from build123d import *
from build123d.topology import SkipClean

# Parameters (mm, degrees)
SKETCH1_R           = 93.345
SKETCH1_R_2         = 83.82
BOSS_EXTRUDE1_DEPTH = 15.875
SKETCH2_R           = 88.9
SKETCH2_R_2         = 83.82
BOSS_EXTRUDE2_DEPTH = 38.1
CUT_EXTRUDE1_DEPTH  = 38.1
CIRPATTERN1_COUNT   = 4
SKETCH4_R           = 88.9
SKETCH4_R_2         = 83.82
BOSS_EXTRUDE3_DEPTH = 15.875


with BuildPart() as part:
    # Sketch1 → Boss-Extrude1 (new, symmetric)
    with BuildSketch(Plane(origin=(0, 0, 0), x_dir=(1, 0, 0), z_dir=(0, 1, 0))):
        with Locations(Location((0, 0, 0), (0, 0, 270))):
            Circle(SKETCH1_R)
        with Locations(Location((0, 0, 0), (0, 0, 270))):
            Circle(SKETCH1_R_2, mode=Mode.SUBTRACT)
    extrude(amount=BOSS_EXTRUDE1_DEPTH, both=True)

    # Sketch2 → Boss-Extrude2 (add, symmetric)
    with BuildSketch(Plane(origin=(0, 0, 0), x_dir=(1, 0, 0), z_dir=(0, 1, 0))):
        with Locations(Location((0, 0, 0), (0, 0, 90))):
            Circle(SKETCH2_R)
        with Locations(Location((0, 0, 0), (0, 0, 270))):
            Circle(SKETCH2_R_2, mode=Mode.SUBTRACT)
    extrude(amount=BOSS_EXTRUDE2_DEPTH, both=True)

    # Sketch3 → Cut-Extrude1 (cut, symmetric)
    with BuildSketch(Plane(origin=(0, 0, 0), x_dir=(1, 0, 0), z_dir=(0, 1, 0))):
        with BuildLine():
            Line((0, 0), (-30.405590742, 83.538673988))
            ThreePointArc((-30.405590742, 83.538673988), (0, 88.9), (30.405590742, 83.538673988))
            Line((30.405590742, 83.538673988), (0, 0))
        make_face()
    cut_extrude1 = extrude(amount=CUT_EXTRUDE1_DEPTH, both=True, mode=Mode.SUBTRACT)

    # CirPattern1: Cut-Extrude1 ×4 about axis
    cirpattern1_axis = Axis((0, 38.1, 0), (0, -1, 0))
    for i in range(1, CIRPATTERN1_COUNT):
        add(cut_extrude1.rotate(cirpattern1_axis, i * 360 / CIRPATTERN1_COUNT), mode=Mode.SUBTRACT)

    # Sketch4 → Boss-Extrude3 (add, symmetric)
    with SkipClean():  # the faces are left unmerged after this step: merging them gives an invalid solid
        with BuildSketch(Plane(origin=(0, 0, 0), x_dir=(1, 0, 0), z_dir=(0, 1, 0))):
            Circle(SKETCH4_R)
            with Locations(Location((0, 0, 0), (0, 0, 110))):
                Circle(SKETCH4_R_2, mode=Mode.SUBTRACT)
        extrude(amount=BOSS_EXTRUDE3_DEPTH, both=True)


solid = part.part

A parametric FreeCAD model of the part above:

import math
import FreeCAD as App
import Part
import Sketcher
from FreeCAD import Vector
Q = App.Units.Quantity

doc = App.newDocument("Part")
body = doc.addObject("PartDesign::Body", "Body")

sketch1 = doc.addObject("Sketcher::SketchObject", "Sketch")
body.addObject(sketch1)
sketch1.AttachmentSupport = (doc.XZ_Plane, [""])
sketch1.MapMode = "FlatFace"
sketch1.addGeometry(Part.Circle(Vector(0, 0, 0), Vector(0, 0, 1), 93), False)
sketch1.addGeometry(Part.Circle(Vector(0, 0, 0), Vector(0, 0, 1), 84), False)
sketch1.addConstraint(Sketcher.Constraint("Coincident", 0, 3, -1, 1))
sketch1.addConstraint(Sketcher.Constraint("Coincident", 1, 3, -1, 1))
sketch1.addConstraint(Sketcher.Constraint("Diameter", 1, Q("6.6 in")))
sketch1.addConstraint(Sketcher.Constraint("Diameter", 0, Q("7.35 in")))
pad1 = doc.addObject("PartDesign::Pad", "Pad")
body.addObject(pad1)
pad1.Profile = sketch1
pad1.Length = Q("1.25 in")
pad1.Midplane = True

sketch2 = doc.addObject("Sketcher::SketchObject", "Sketch001")
body.addObject(sketch2)
sketch2.AttachmentSupport = (doc.XZ_Plane, [""])
sketch2.MapMode = "FlatFace"
sketch2.addGeometry(Part.Circle(Vector(0, 0, 0), Vector(0, 0, 1), 89), False)
sketch2.addGeometry(Part.Circle(Vector(0, 0, 0), Vector(0, 0, 1), 84), False)
sketch2.addConstraint(Sketcher.Constraint("Coincident", 0, 3, -1, 1))
sketch2.addConstraint(Sketcher.Constraint("Coincident", 1, 3, -1, 1))
sketch2.addConstraint(Sketcher.Constraint("Diameter", 0, Q("7 in")))
sketch2.addConstraint(Sketcher.Constraint("Diameter", 1, Q("6.6 in")))
pad2 = doc.addObject("PartDesign::Pad", "Pad001")
body.addObject(pad2)
pad2.Profile = sketch2
pad2.Length = Q("3 in")
pad2.Midplane = True

sketch3 = doc.addObject("Sketcher::SketchObject", "Sketch002")
body.addObject(sketch3)
sketch3.AttachmentSupport = (doc.XZ_Plane, [""])
sketch3.MapMode = "FlatFace"
sketch3.addGeometry(Part.LineSegment(Vector(-30, -84, 0), Vector(0, 0, 0)), False)
sketch3.addGeometry(Part.LineSegment(Vector(0, 0, 0), Vector(30, -84, 0)), False)
sketch3.addGeometry(Part.ArcOfCircle(Part.Circle(Vector(0, 0, 0), Vector(0, 0, 1), 89), math.radians(-110), math.radians(-70)), False)
sketch3.addConstraint(Sketcher.Constraint("Coincident", 0, 2, 1, 1))
sketch3.addConstraint(Sketcher.Constraint("Coincident", 1, 2, 2, 2))
sketch3.addConstraint(Sketcher.Constraint("Coincident", 2, 1, 0, 1))
sketch3.addConstraint(Sketcher.Constraint("Coincident", 2, 3, -1, 1))
sketch3.addConstraint(Sketcher.Constraint("Coincident", 0, 2, -1, 1))
sketch3.addConstraint(Sketcher.Constraint("Horizontal", 1, 2, 2, 1))
sketch3.addConstraint(Sketcher.Constraint("Radius", 2, Q("3.5 in")))
sketch3.addConstraint(Sketcher.Constraint("Angle", 0, Q("70 deg")))
pocket1 = doc.addObject("PartDesign::Pocket", "Pocket")
body.addObject(pocket1)
pocket1.Profile = sketch3
pocket1.Length = Q("3 in")
pocket1.Midplane = True
doc.recompute()

polarpattern = doc.addObject("PartDesign::PolarPattern", "PolarPattern")
body.addObject(polarpattern)
polarpattern.Originals = [pocket1]
polarpattern.Axis = (doc.Y_Axis, [""])
polarpattern.Angle = 360
polarpattern.Occurrences = 4
body.Tip = polarpattern

sketch4 = doc.addObject("Sketcher::SketchObject", "Sketch003")
body.addObject(sketch4)
sketch4.AttachmentSupport = (doc.XZ_Plane, [""])
sketch4.MapMode = "FlatFace"
sketch4.addGeometry(Part.Circle(Vector(0, 0, 0), Vector(0, 0, 1), 89), False)
sketch4.addGeometry(Part.Circle(Vector(0, 0, 0), Vector(0, 0, 1), 84), False)
sketch4.addConstraint(Sketcher.Constraint("Coincident", 0, 3, -1, 1))
sketch4.addConstraint(Sketcher.Constraint("Coincident", 1, 3, -1, 1))
sketch4.addConstraint(Sketcher.Constraint("Diameter", 0, Q("7 in")))
sketch4.addConstraint(Sketcher.Constraint("Diameter", 1, Q("6.6 in")))
pad3 = doc.addObject("PartDesign::Pad", "Pad002")
body.addObject(pad3)
pad3.Profile = sketch4
pad3.Length = Q("1.25 in")
pad3.Midplane = True

doc.recompute()
